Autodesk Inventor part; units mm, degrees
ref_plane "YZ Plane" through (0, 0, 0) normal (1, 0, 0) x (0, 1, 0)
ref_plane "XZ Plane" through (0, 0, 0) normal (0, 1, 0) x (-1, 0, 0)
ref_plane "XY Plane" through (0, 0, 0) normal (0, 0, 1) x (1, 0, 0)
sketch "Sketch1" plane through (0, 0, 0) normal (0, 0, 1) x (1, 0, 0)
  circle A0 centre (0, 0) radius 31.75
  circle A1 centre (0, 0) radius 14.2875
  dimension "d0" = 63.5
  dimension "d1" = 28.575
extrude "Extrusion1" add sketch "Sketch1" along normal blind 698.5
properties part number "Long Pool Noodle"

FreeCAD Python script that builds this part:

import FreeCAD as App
import Part
import Sketcher
Q = App.Units.Quantity

doc = App.newDocument("Part")
params = doc.addObject("Spreadsheet::Sheet", "Params")
for row, (alias, value) in enumerate([
    ("sketch1_diameter", "2.5 in"),
    ("sketch1_diameter2", "1.125 in"),
    ("pad1_length", "27.5 in"),
], start=1):
    params.set(f"A{row}", alias)
    params.set(f"B{row}", "=" + value)
    params.setAlias(f"B{row}", alias)

body = doc.addObject("PartDesign::Body", "Body")

# Sketch on XY plane
sketch1 = body.newObject("Sketcher::SketchObject", "Sketch")
sketch1.AttachmentSupport = (doc.getObject("XY_Plane"), [""])
sketch1.MapMode = "FlatFace"
sketch1.addGeometry([
    Part.Circle(App.Vector(0, 0, 0), App.Vector(0, 0, 1), 32),
    Part.Circle(App.Vector(0, 0, 0), App.Vector(0, 0, 1), 14),
], False)
sketch1.addConstraint([
    Sketcher.Constraint("Coincident", 0, 3, -1, 1),
    Sketcher.Constraint("Coincident", 1, 3, -1, 1),
    Sketcher.Constraint("Diameter", 0, Q("2.5 in")),
    Sketcher.Constraint("Diameter", 1, Q("1.125 in")),
])
sketch1.setExpression("Constraints[2]", "Params.sketch1_diameter")
sketch1.setExpression("Constraints[3]", "Params.sketch1_diameter2")
pad1 = body.newObject("PartDesign::Pad", "Pad")
pad1.Profile = sketch1
pad1.setExpression("Length", "Params.pad1_length")

doc.recompute()
